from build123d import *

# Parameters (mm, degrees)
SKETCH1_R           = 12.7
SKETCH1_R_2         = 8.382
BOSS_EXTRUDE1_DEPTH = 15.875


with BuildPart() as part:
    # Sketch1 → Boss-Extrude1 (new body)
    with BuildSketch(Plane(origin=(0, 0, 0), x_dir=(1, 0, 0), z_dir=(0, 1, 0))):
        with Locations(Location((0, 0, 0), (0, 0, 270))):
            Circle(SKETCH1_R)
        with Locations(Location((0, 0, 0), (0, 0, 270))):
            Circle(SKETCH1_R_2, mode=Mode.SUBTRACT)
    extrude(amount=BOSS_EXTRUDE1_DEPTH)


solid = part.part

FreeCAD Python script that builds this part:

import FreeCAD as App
import Part
import Sketcher
from FreeCAD import Vector
Q = App.Units.Quantity

doc = App.newDocument("Part")
body = doc.addObject("PartDesign::Body", "Body")

sketch1 = body.newObject("Sketcher::SketchObject", "Sketch")
sketch1.AttachmentSupport = (doc.getObject("XZ_Plane"), [""])
sketch1.MapMode = "FlatFace"
sketch1.addGeometry(Part.Circle(Vector(0, 0, 0), Vector(0, 0, 1), 13), False)
sketch1.addGeometry(Part.Circle(Vector(0, 0, 0), Vector(0, 0, 1), 8), False)
sketch1.addConstraint(Sketcher.Constraint("Coincident", 0, 3, -1, 1))
sketch1.addConstraint(Sketcher.Constraint("Coincident", 1, 3, -1, 1))
sketch1.addConstraint(Sketcher.Constraint("Diameter", 0, Q("1 in")))
sketch1.addConstraint(Sketcher.Constraint("Diameter", 1, Q("0.66 in")))
pad1 = body.newObject("PartDesign::Pad", "Pad")
pad1.Profile = sketch1
pad1.Length = Q("0.625 in")
pad1.Reversed = True

doc.recompute()
